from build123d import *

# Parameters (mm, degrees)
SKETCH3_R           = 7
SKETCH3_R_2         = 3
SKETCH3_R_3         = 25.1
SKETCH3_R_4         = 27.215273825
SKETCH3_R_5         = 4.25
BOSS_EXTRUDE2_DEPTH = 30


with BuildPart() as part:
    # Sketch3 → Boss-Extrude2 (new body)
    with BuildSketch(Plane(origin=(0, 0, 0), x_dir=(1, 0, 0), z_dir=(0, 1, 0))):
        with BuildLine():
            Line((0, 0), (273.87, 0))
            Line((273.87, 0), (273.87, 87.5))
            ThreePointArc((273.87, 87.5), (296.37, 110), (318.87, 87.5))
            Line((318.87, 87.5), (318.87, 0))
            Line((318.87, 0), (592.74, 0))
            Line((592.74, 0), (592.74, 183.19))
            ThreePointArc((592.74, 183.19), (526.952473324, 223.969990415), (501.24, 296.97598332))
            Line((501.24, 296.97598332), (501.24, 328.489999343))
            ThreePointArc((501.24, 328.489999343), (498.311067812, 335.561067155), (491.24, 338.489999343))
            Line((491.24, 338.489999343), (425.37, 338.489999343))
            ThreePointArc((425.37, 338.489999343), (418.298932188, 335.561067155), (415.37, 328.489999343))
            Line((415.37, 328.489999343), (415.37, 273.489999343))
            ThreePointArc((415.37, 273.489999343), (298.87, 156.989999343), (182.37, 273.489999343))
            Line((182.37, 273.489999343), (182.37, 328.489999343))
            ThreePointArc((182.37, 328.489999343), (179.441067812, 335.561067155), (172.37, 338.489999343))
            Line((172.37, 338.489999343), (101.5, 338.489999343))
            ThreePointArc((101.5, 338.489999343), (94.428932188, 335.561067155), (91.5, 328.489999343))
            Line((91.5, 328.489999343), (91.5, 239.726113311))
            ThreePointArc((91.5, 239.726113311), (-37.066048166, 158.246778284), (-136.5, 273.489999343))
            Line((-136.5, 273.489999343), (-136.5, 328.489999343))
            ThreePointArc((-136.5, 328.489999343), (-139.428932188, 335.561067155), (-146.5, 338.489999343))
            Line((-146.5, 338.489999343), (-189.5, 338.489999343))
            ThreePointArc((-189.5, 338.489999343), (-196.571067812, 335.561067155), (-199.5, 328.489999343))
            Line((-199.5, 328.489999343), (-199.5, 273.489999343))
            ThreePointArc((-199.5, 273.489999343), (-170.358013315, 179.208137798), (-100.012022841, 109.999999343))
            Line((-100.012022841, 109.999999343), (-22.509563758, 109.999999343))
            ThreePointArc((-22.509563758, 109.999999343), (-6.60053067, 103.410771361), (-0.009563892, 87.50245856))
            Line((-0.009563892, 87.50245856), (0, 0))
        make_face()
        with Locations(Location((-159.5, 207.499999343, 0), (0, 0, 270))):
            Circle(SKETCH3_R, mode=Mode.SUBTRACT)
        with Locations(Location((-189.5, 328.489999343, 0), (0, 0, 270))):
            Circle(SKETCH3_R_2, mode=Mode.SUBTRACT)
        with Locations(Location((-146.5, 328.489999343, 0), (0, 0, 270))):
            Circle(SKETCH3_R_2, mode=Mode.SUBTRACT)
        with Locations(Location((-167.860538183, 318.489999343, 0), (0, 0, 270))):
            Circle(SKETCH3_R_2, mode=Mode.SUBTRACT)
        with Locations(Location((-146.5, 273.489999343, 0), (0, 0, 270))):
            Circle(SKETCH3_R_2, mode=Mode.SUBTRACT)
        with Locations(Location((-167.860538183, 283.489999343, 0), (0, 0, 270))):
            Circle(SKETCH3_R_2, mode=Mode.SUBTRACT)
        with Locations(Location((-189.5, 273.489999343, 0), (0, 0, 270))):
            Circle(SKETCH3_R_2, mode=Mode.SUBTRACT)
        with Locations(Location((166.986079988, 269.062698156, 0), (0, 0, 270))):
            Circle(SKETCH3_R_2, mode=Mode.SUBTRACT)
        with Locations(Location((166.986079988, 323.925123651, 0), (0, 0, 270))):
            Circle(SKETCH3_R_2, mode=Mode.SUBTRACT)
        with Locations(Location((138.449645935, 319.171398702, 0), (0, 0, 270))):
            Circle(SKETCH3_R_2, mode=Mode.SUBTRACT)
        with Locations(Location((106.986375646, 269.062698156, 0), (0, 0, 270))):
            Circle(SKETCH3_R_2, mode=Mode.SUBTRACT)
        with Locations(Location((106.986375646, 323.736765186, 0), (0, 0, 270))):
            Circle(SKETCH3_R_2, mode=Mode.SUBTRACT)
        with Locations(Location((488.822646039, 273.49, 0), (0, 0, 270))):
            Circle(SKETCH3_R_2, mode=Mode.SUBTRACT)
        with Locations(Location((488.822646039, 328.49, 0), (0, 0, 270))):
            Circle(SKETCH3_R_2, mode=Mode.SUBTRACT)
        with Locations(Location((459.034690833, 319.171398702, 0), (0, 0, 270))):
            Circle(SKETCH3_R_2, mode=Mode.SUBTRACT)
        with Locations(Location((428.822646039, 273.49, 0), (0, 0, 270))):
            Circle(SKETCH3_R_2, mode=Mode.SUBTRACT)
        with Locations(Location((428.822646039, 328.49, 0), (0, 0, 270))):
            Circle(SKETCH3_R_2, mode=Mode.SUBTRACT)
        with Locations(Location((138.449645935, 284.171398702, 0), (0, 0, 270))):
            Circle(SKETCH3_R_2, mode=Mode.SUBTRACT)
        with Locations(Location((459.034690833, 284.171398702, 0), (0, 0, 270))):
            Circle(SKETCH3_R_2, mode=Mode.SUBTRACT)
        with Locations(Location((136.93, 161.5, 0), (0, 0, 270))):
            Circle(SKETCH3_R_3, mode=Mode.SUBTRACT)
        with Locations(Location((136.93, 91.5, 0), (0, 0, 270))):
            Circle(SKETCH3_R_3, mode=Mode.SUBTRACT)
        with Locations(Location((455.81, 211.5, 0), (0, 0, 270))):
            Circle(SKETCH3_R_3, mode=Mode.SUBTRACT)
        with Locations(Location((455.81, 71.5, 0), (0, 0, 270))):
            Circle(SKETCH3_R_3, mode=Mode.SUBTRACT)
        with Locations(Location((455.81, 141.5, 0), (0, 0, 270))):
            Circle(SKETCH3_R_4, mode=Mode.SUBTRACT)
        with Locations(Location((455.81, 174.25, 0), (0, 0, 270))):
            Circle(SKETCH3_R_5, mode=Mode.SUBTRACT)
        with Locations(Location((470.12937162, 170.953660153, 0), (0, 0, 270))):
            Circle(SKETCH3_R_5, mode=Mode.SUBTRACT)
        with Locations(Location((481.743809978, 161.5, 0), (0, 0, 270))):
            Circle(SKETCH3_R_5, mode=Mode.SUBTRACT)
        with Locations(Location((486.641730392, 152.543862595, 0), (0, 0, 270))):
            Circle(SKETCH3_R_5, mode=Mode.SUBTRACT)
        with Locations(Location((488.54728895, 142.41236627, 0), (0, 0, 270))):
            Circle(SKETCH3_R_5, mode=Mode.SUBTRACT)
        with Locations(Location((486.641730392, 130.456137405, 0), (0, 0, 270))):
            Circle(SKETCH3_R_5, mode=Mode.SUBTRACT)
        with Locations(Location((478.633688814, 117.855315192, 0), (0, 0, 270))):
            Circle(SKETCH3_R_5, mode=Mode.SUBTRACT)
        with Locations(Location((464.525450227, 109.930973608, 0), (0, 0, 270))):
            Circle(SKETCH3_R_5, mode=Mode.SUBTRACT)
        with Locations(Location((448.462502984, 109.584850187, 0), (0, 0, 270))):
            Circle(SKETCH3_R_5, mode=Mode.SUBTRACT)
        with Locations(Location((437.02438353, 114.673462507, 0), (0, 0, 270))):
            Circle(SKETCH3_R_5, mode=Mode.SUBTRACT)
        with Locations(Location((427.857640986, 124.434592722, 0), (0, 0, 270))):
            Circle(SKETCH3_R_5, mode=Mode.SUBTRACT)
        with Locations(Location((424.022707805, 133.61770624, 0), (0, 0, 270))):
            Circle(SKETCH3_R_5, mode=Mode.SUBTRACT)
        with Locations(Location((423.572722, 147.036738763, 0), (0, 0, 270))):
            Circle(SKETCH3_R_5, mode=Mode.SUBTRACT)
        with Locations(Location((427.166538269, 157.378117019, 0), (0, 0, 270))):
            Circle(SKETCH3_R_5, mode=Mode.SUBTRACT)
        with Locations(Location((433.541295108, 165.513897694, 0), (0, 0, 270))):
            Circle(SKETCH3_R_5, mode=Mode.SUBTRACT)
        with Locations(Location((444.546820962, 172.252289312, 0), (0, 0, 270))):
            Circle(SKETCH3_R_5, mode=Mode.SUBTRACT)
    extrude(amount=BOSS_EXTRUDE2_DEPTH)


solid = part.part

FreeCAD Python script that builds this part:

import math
import FreeCAD as App
import Part
import Sketcher
from FreeCAD import Vector

doc = App.newDocument("Part")
body = doc.addObject("PartDesign::Body", "Body")

sketch1 = body.newObject("Sketcher::SketchObject", "Sketch")
sketch1.AttachmentSupport = (doc.getObject("XZ_Plane"), [""])
sketch1.MapMode = "FlatFace"
sketch1.addGeometry([
    Part.LineSegment(Vector(0, 0, 0), Vector(273.9, 0, 0)),
    Part.LineSegment(Vector(273.9, 0, 0), Vector(273.9, -87.5, 0)),
    Part.ArcOfCircle(Part.Circle(Vector(296.4, -87.5, 0), Vector(0, 0, 1), 22.5), math.radians(180), math.radians(360)),
    Part.LineSegment(Vector(318.9, -87.5, 0), Vector(318.9, 0, 0)),
    Part.LineSegment(Vector(318.9, 0, 0), Vector(592.7, 0, 0)),
    Part.LineSegment(Vector(592.7, 0, 0), Vector(592.7, -183.2, 0)),
    Part.ArcOfCircle(Part.Circle(Vector(617.7, -297, 0), Vector(0, 0, 1), 116.5), math.radians(102), math.radians(180)),
    Part.LineSegment(Vector(501.2, -297, 0), Vector(501.2, -328.5, 0)),
    Part.ArcOfCircle(Part.Circle(Vector(491.2, -328.5, 0), Vector(0, 0, 1), 10), math.radians(-90), math.radians(0)),
    Part.LineSegment(Vector(491.2, -338.5, 0), Vector(425.4, -338.5, 0)),
    Part.ArcOfCircle(Part.Circle(Vector(425.4, -328.5, 0), Vector(0, 0, 1), 10), math.radians(180), math.radians(270)),
    Part.LineSegment(Vector(415.4, -328.5, 0), Vector(415.4, -273.5, 0)),
    Part.ArcOfCircle(Part.Circle(Vector(298.9, -273.5, 0), Vector(0, 0, 1), 116.5), math.radians(0), math.radians(180)),
    Part.LineSegment(Vector(182.4, -273.5, 0), Vector(182.4, -328.5, 0)),
    Part.ArcOfCircle(Part.Circle(Vector(172.4, -328.5, 0), Vector(0, 0, 1), 10), math.radians(-90), math.radians(0)),
    Part.LineSegment(Vector(172.4, -338.5, 0), Vector(101.5, -338.5, 0)),
    Part.ArcOfCircle(Part.Circle(Vector(101.5, -328.5, 0), Vector(0, 0, 1), 10), math.radians(180), math.radians(270)),
    Part.LineSegment(Vector(91.5, -328.5, 0), Vector(91.5, -239.7, 0)),
    Part.ArcOfCircle(Part.Circle(Vector(-20, -273.5, 0), Vector(0, 0, 1), 116.5), math.radians(17), math.radians(180)),
    Part.LineSegment(Vector(-136.5, -273.5, 0), Vector(-136.5, -328.5, 0)),
    Part.ArcOfCircle(Part.Circle(Vector(-146.5, -328.5, 0), Vector(0, 0, 1), 10), math.radians(-90), math.radians(0)),
    Part.LineSegment(Vector(-146.5, -338.5, 0), Vector(-189.5, -338.5, 0)),
    Part.ArcOfCircle(Part.Circle(Vector(-189.5, -328.5, 0), Vector(0, 0, 1), 10), math.radians(180), math.radians(270)),
    Part.LineSegment(Vector(-199.5, -328.5, 0), Vector(-199.5, -273.5, 0)),
    Part.ArcOfCircle(Part.Circle(Vector(2.1, -284.2, 0), Vector(0, 0, 1), 201.9), math.radians(120), math.radians(177)),
    Part.LineSegment(Vector(-100, -110, 0), Vector(-22.5, -110, 0)),
    Part.ArcOfCircle(Part.Circle(Vector(-22.5, -87.5, 0), Vector(0, 0, 1), 22.5), math.radians(-90), math.radians(0)),
    Part.LineSegment(Vector(0, -87.5, 0), Vector(0, 0, 0)),
    Part.Circle(Vector(136.9, -91.5, 0), Vector(0, 0, 1), 25.1),
    Part.Circle(Vector(136.9, -161.5, 0), Vector(0, 0, 1), 25.1),
    Part.Circle(Vector(455.8, -71.5, 0), Vector(0, 0, 1), 25.1),
    Part.Circle(Vector(448.5, -109.6, 0), Vector(0, 0, 1), 4.2),
    Part.Circle(Vector(437, -114.7, 0), Vector(0, 0, 1), 4.2),
    Part.Circle(Vector(464.5, -109.9, 0), Vector(0, 0, 1), 4.2),
    Part.Circle(Vector(427.9, -124.4, 0), Vector(0, 0, 1), 4.2),
    Part.Circle(Vector(424, -133.6, 0), Vector(0, 0, 1), 4.2),
    Part.Circle(Vector(478.6, -117.9, 0), Vector(0, 0, 1), 4.2),
    Part.Circle(Vector(486.6, -130.5, 0), Vector(0, 0, 1), 4.2),
    Part.Circle(Vector(423.6, -147, 0), Vector(0, 0, 1), 4.2),
    Part.Circle(Vector(455.8, -141.5, 0), Vector(0, 0, 1), 27.2),
    Part.Circle(Vector(488.5, -142.4, 0), Vector(0, 0, 1), 4.2),
    Part.Circle(Vector(486.6, -152.5, 0), Vector(0, 0, 1), 4.2),
    Part.Circle(Vector(427.2, -157.4, 0), Vector(0, 0, 1), 4.2),
    Part.Circle(Vector(433.5, -165.5, 0), Vector(0, 0, 1), 4.2),
    Part.Circle(Vector(481.7, -161.5, 0), Vector(0, 0, 1), 4.2),
    Part.Circle(Vector(470.1, -171, 0), Vector(0, 0, 1), 4.2),
    Part.Circle(Vector(444.5, -172.3, 0), Vector(0, 0, 1), 4.2),
    Part.Circle(Vector(455.8, -174.2, 0), Vector(0, 0, 1), 4.2),
    Part.Circle(Vector(-159.5, -207.5, 0), Vector(0, 0, 1), 7),
    Part.Circle(Vector(-189.5, -273.5, 0), Vector(0, 0, 1), 3),
    Part.Circle(Vector(-146.5, -273.5, 0), Vector(0, 0, 1), 3),
    Part.Circle(Vector(-167.9, -283.5, 0), Vector(0, 0, 1), 3),
    Part.Circle(Vector(-167.9, -318.5, 0), Vector(0, 0, 1), 3),
    Part.Circle(Vector(-189.5, -328.5, 0), Vector(0, 0, 1), 3),
    Part.Circle(Vector(-146.5, -328.5, 0), Vector(0, 0, 1), 3),
    Part.Circle(Vector(107, -269.1, 0), Vector(0, 0, 1), 3),
    Part.Circle(Vector(138.4, -284.2, 0), Vector(0, 0, 1), 3),
    Part.Circle(Vector(107, -323.7, 0), Vector(0, 0, 1), 3),
    Part.Circle(Vector(138.4, -319.2, 0), Vector(0, 0, 1), 3),
    Part.Circle(Vector(455.8, -211.5, 0), Vector(0, 0, 1), 25.1),
    Part.Circle(Vector(167, -269.1, 0), Vector(0, 0, 1), 3),
    Part.Circle(Vector(167, -323.9, 0), Vector(0, 0, 1), 3),
    Part.Circle(Vector(428.8, -273.5, 0), Vector(0, 0, 1), 3),
    Part.Circle(Vector(488.8, -273.5, 0), Vector(0, 0, 1), 3),
    Part.Circle(Vector(459, -284.2, 0), Vector(0, 0, 1), 3),
    Part.Circle(Vector(428.8, -328.5, 0), Vector(0, 0, 1), 3),
    Part.Circle(Vector(459, -319.2, 0), Vector(0, 0, 1), 3),
    Part.Circle(Vector(488.8, -328.5, 0), Vector(0, 0, 1), 3),
], False)
sketch1.addConstraint([
    Sketcher.Constraint("Coincident", 0, 2, 1, 1),
    Sketcher.Constraint("Tangent", 1, 2, 2, 1),
    Sketcher.Constraint("Tangent", 2, 2, 3, 1),
    Sketcher.Constraint("Coincident", 3, 2, 4, 1),
    Sketcher.Constraint("Coincident", 4, 2, 5, 1),
    Sketcher.Constraint("Coincident", 5, 2, 6, 1),
    Sketcher.Constraint("Tangent", 6, 2, 7, 1),
    Sketcher.Constraint("Tangent", 7, 2, 8, 2),
    Sketcher.Constraint("Tangent", 8, 1, 9, 1),
    Sketcher.Constraint("Tangent", 9, 2, 10, 2),
    Sketcher.Constraint("Tangent", 10, 1, 11, 1),
    Sketcher.Constraint("Tangent", 11, 2, 12, 1),
    Sketcher.Constraint("Tangent", 12, 2, 13, 1),
    Sketcher.Constraint("Tangent", 13, 2, 14, 2),
    Sketcher.Constraint("Tangent", 14, 1, 15, 1),
    Sketcher.Constraint("Tangent", 15, 2, 16, 2),
    Sketcher.Constraint("Tangent", 16, 1, 17, 1),
    Sketcher.Constraint("Coincident", 17, 2, 18, 1),
    Sketcher.Constraint("Tangent", 18, 2, 19, 1),
    Sketcher.Constraint("Tangent", 19, 2, 20, 2),
    Sketcher.Constraint("Tangent", 20, 1, 21, 1),
    Sketcher.Constraint("Tangent", 21, 2, 22, 2),
    Sketcher.Constraint("Tangent", 22, 1, 23, 1),
    Sketcher.Constraint("Coincident", 23, 2, 24, 2),
    Sketcher.Constraint("Coincident", 24, 1, 25, 1),
    Sketcher.Constraint("Tangent", 25, 2, 26, 1),
    Sketcher.Constraint("Tangent", 26, 2, 27, 1),
    Sketcher.Constraint("Coincident", 27, 2, 0, 1),
    Sketcher.Constraint("Horizontal", 0),
    Sketcher.Constraint("Vertical", 1),
    Sketcher.Constraint("Vertical", 3),
    Sketcher.Constraint("Horizontal", 4),
    Sketcher.Constraint("Vertical", 5),
    Sketcher.Constraint("Vertical", 7),
    Sketcher.Constraint("Horizontal", 9),
    Sketcher.Constraint("Vertical", 11),
    Sketcher.Constraint("Vertical", 13),
    Sketcher.Constraint("Horizontal", 15),
    Sketcher.Constraint("Vertical", 17),
    Sketcher.Constraint("Vertical", 19),
    Sketcher.Constraint("Horizontal", 21),
    Sketcher.Constraint("Vertical", 23),
    Sketcher.Constraint("Horizontal", 25),
    Sketcher.Constraint("Coincident", 27, 2, -1, 1),
    Sketcher.Constraint("Coincident", 53, 3, 22, 3),
    Sketcher.Constraint("Coincident", 54, 3, 20, 3),
    Sketcher.Constraint("Equal", 8, 10),
    Sketcher.Constraint("Equal", 6, 12),
    Sketcher.Constraint("Equal", 10, 14),
    Sketcher.Constraint("Equal", 14, 16),
    Sketcher.Constraint("Equal", 12, 18),
    Sketcher.Constraint("Equal", 16, 20),
    Sketcher.Constraint("Equal", 20, 22),
    Sketcher.Constraint("Equal", 2, 26),
    Sketcher.Constraint("Equal", 28, 29),
    Sketcher.Constraint("Equal", 29, 30),
    Sketcher.Constraint("Equal", 31, 32),
    Sketcher.Constraint("Equal", 32, 33),
    Sketcher.Constraint("Equal", 33, 34),
    Sketcher.Constraint("Equal", 34, 35),
    Sketcher.Constraint("Equal", 35, 36),
    Sketcher.Constraint("Equal", 36, 37),
    Sketcher.Constraint("Equal", 37, 38),
    Sketcher.Constraint("Equal", 38, 40),
    Sketcher.Constraint("Equal", 40, 41),
    Sketcher.Constraint("Equal", 41, 42),
    Sketcher.Constraint("Equal", 42, 43),
    Sketcher.Constraint("Equal", 43, 44),
    Sketcher.Constraint("Equal", 44, 45),
    Sketcher.Constraint("Equal", 45, 46),
    Sketcher.Constraint("Equal", 46, 47),
    Sketcher.Constraint("Equal", 49, 50),
    Sketcher.Constraint("Equal", 50, 51),
    Sketcher.Constraint("Equal", 51, 52),
    Sketcher.Constraint("Equal", 52, 53),
    Sketcher.Constraint("Equal", 53, 54),
    Sketcher.Constraint("Equal", 54, 55),
    Sketcher.Constraint("Equal", 55, 56),
    Sketcher.Constraint("Equal", 56, 57),
    Sketcher.Constraint("Equal", 57, 58),
    Sketcher.Constraint("Equal", 30, 59),
    Sketcher.Constraint("Equal", 58, 60),
    Sketcher.Constraint("Equal", 60, 61),
    Sketcher.Constraint("Equal", 61, 62),
    Sketcher.Constraint("Equal", 62, 63),
    Sketcher.Constraint("Equal", 63, 64),
    Sketcher.Constraint("Equal", 64, 65),
    Sketcher.Constraint("Equal", 65, 66),
    Sketcher.Constraint("Equal", 66, 67),
    Sketcher.Constraint("PointOnObject", 3, 2, -1),
    Sketcher.Constraint("Horizontal", 10, 3, 14, 3),
    Sketcher.Constraint("Horizontal", 12, 3, 18, 3),
    Sketcher.Constraint("Horizontal", 16, 3, 20, 3),
    Sketcher.Constraint("Horizontal", 2, 3, 26, 3),
    Sketcher.Constraint("Horizontal", 29, 3, 44, 3),
    Sketcher.Constraint("Horizontal", 18, 3, 49, 3),
    Sketcher.Constraint("Horizontal", 49, 3, 50, 3),
    Sketcher.Constraint("Horizontal", 55, 3, 60, 3),
    Sketcher.Constraint("Horizontal", 50, 3, 62, 3),
    Sketcher.Constraint("Horizontal", 62, 3, 63, 3),
    Sketcher.Constraint("Horizontal", 56, 3, 64, 3),
    Sketcher.Constraint("Horizontal", 54, 3, 65, 3),
    Sketcher.Constraint("Horizontal", 58, 3, 66, 3),
    Sketcher.Constraint("Horizontal", 65, 3, 67, 3),
    Sketcher.Constraint("Horizontal", 18, 2, 23, 2),
    Sketcher.Constraint("Vertical", 28, 3, 29, 3),
    Sketcher.Constraint("Vertical", 30, 3, 39, 3),
    Sketcher.Constraint("Vertical", 37, 3, 41, 3),
    Sketcher.Constraint("Vertical", 39, 3, 47, 3),
    Sketcher.Constraint("Vertical", 22, 3, 49, 3),
    Sketcher.Constraint("Vertical", 20, 3, 50, 3),
    Sketcher.Constraint("Vertical", 51, 3, 52, 3),
    Sketcher.Constraint("Vertical", 55, 3, 57, 3),
    Sketcher.Constraint("Vertical", 56, 3, 58, 3),
    Sketcher.Constraint("Vertical", 47, 3, 59, 3),
    Sketcher.Constraint("Vertical", 60, 3, 61, 3),
    Sketcher.Constraint("Vertical", 62, 3, 65, 3),
    Sketcher.Constraint("Vertical", 64, 3, 66, 3),
    Sketcher.Constraint("Vertical", 63, 3, 67, 3),
    Sketcher.Constraint("Equal", 0, 4),
    Sketcher.Constraint("Diameter", 48, 14.0),
    Sketcher.Constraint("Diameter", 49, 6.0),
    Sketcher.Constraint("Radius", 8, 10.0),
    Sketcher.Constraint("Diameter", 28, 50.2),
    Sketcher.Constraint("Diameter", 31, 8.5),
    Sketcher.Constraint("Radius", 2, 22.5),
    Sketcher.Constraint("Radius", 6, 116.5),
    Sketcher.Constraint("Radius", 24, 201.9),
    Sketcher.Constraint("DistanceX", 21, 2, 21, 1, 43.0),
    Sketcher.Constraint("DistanceY", 11, 1, 11, 2, 55.0),
    Sketcher.Constraint("DistanceY", 1, 2, 1, 1, 87.5),
    Sketcher.Constraint("DistanceX", 18, 3, -1, 1, 20.0),
    Sketcher.Constraint("DistanceX", 0, 1, 0, 2, 273.87),
    Sketcher.Constraint("DistanceX", 9, 2, 9, 1, 65.87),
    Sketcher.Constraint("DistanceX", 15, 2, 15, 1, 70.87),
    Sketcher.Constraint("DistanceY", 5, 2, 5, 1, 183.19),
    Sketcher.Constraint("DistanceX", -1, 1, 16, 3, 101.5),
    Sketcher.Constraint("DistanceY", 28, 3, -1, 1, 91.5),
    Sketcher.Constraint("DistanceY", 29, 3, -1, 1, 161.5),
    Sketcher.Constraint("DistanceY", 30, 3, -1, 1, 71.5),
    Sketcher.Constraint("DistanceY", 39, 3, -1, 1, 141.5),
    Sketcher.Constraint("DistanceX", 48, 3, -1, 1, 159.5),
    Sketcher.Constraint("DistanceY", 48, 3, -1, 1, 207.499999),
    Sketcher.Constraint("DistanceY", 59, 3, -1, 1, 211.5),
    Sketcher.Constraint("DistanceY", 8, 3, -1, 1, 328.489999),
    Sketcher.Constraint("DistanceX", -1, 1, 28, 3, 136.93),
    Sketcher.Constraint("DistanceX", -1, 1, 30, 3, 455.81),
    Sketcher.Constraint("DistanceY", 47, 3, -1, 1, 174.25),
    Sketcher.Constraint("DistanceY", 51, 3, -1, 1, 283.489999),
    Sketcher.Constraint("DistanceY", 52, 3, -1, 1, 318.489999),
    Sketcher.Constraint("Diameter", 39, 54.430548),
    Sketcher.Constraint("DistanceX", 25, 1, 25, 2, 77.502459),
    Sketcher.Constraint("DistanceY", 55, 3, -1, 1, 269.062698),
    Sketcher.Constraint("DistanceY", 56, 3, -1, 1, 284.171399),
    Sketcher.Constraint("DistanceY", 58, 3, -1, 1, 319.171399),
    Sketcher.Constraint("Distance", 27, 87.502459),
    Sketcher.Constraint("DistanceY", 31, 3, -1, 1, 109.58485),
    Sketcher.Constraint("DistanceX", -1, 1, 33, 3, 464.52545),
    Sketcher.Constraint("DistanceX", -1, 1, 34, 3, 427.857641),
    Sketcher.Constraint("DistanceX", -1, 1, 36, 3, 478.633689),
    Sketcher.Constraint("DistanceX", -1, 1, 37, 3, 486.64173),
    Sketcher.Constraint("DistanceX", -1, 1, 38, 3, 423.572722),
    Sketcher.Constraint("DistanceY", 38, 3, -1, 1, 147.036739),
    Sketcher.Constraint("DistanceX", -1, 1, 40, 3, 488.547289),
    Sketcher.Constraint("DistanceX", -1, 1, 42, 3, 427.166538),
    Sketcher.Constraint("DistanceX", -1, 1, 44, 3, 481.74381),
    Sketcher.Constraint("DistanceX", -1, 1, 45, 3, 470.129372),
    Sketcher.Constraint("DistanceY", 45, 3, -1, 1, 170.95366),
    Sketcher.Constraint("DistanceX", -1, 1, 46, 3, 444.546821),
    Sketcher.Constraint("DistanceY", 46, 3, -1, 1, 172.252289),
    Sketcher.Constraint("DistanceX", 51, 3, -1, 1, 167.860538),
    Sketcher.Constraint("DistanceX", -1, 1, 60, 3, 166.98608),
    Sketcher.Constraint("DistanceX", -1, 1, 64, 3, 459.034691),
    Sketcher.Constraint("DistanceX", -1, 1, 31, 3, 448.462503),
    Sketcher.Constraint("DistanceX", -1, 1, 32, 3, 437.024384),
    Sketcher.Constraint("DistanceY", 32, 3, -1, 1, 114.673463),
    Sketcher.Constraint("DistanceY", 33, 3, -1, 1, 109.930974),
    Sketcher.Constraint("DistanceY", 34, 3, -1, 1, 124.434593),
    Sketcher.Constraint("DistanceX", -1, 1, 35, 3, 424.022708),
    Sketcher.Constraint("DistanceY", 35, 3, -1, 1, 133.617706),
    Sketcher.Constraint("DistanceY", 36, 3, -1, 1, 117.855315),
    Sketcher.Constraint("DistanceY", 37, 3, -1, 1, 130.456137),
    Sketcher.Constraint("DistanceY", 40, 3, -1, 1, 142.412366),
    Sketcher.Constraint("DistanceY", 41, 3, -1, 1, 152.543863),
    Sketcher.Constraint("DistanceY", 42, 3, -1, 1, 157.378117),
    Sketcher.Constraint("DistanceX", -1, 1, 43, 3, 433.541295),
    Sketcher.Constraint("DistanceY", 43, 3, -1, 1, 165.513898),
    Sketcher.Constraint("DistanceX", -1, 1, 55, 3, 106.986376),
    Sketcher.Constraint("DistanceX", -1, 1, 56, 3, 138.449646),
    Sketcher.Constraint("DistanceY", 57, 3, -1, 1, 323.736765),
    Sketcher.Constraint("DistanceY", 61, 3, -1, 1, 323.925124),
    Sketcher.Constraint("DistanceX", -1, 1, 62, 3, 428.822646),
    Sketcher.Constraint("DistanceX", -1, 1, 63, 3, 488.822646),
])
pad1 = body.newObject("PartDesign::Pad", "Pad")
pad1.Profile = sketch1
pad1.Length = 30
pad1.Reversed = True

doc.recompute()
